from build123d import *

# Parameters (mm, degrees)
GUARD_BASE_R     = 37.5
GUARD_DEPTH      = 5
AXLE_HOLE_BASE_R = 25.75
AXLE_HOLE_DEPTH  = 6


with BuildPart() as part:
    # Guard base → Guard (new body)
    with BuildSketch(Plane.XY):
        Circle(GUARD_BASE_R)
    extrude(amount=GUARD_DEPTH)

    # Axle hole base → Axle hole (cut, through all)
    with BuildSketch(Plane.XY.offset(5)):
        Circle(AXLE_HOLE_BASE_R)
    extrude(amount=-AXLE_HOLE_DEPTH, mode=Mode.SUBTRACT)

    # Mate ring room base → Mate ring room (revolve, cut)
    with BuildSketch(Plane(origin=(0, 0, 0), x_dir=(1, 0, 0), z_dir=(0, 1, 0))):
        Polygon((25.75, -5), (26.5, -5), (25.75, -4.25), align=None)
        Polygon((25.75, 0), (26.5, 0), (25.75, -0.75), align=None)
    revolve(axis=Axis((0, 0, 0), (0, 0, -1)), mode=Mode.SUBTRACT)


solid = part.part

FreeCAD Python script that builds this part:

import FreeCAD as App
import Part
import Sketcher

V = App.Vector


def add_polygon(sketch, points):
    """Adds a closed chain of lines whose ends are joined by coincident constraints."""
    first, n = sketch.GeometryCount, len(points)
    for a, b in zip(points, points[1:] + points[:1]):
        sketch.addGeometry(Part.LineSegment(App.Vector(*a, 0), App.Vector(*b, 0)), False)
    for i in range(n):
        sketch.addConstraint(Sketcher.Constraint("Coincident", first + i, 2, first + (i + 1) % n, 1))

doc = App.newDocument("Part")
params = doc.addObject("Spreadsheet::Sheet", "Params")
for row, (alias, value) in enumerate([
    ("sketch1_diameter", "75 mm"),
    ("pad1_length", "5 mm"),
    ("sketch2_diameter", "51.5 mm"),
    ("sketch3_width", "0.75 mm"),
    ("groove_angle", "360 deg"),
], start=1):
    params.set(f"A{row}", alias)
    params.set(f"B{row}", "=" + value)
    params.setAlias(f"B{row}", alias)

body = doc.addObject("PartDesign::Body", "Body")

# Sketch on XY plane
sketch1 = body.newObject("Sketcher::SketchObject", "Sketch")
sketch1.AttachmentSupport = (doc.getObject("XY_Plane"), [""])
sketch1.MapMode = "FlatFace"
sketch1.addGeometry(Part.Circle(V(0, 0, 0), V(0, 0, 1), 37.5), False)
sketch1.addConstraint([
    Sketcher.Constraint("Coincident", 0, 3, -1, 1),
    Sketcher.Constraint("Diameter", 0, 75.0),
])
sketch1.setExpression("Constraints[1]", "Params.sketch1_diameter")
pad1 = body.newObject("PartDesign::Pad", "Pad")
pad1.Profile = sketch1
pad1.setExpression("Length", "Params.pad1_length")

# Sketch on XY plane
sketch2 = body.newObject("Sketcher::SketchObject", "Sketch001")
sketch2.AttachmentSupport = (doc.getObject("XY_Plane"), [""])
sketch2.MapMode = "FlatFace"
sketch2.AttachmentOffset = App.Placement(V(0, 0, 5), App.Rotation())
sketch2.addGeometry(Part.Circle(V(0, 0, 0), V(0, 0, 1), 25.75), False)
sketch2.addConstraint([
    Sketcher.Constraint("Coincident", 0, 3, -1, 1),
    Sketcher.Constraint("Diameter", 0, 51.5),
])
sketch2.setExpression("Constraints[1]", "Params.sketch2_diameter")
pocket1 = body.newObject("PartDesign::Pocket", "Pocket")
pocket1.Profile = sketch2
pocket1.Type = "ThroughAll"

# Sketch on XZ plane
sketch3 = body.newObject("Sketcher::SketchObject", "Sketch002")
sketch3.AttachmentSupport = (doc.getObject("XZ_Plane"), [""])
sketch3.MapMode = "FlatFace"
add_polygon(sketch3, [(25.75, 5), (26.5, 5), (25.75, 4.25)])  # lines 0-2
add_polygon(sketch3, [(26.5, 0), (25.75, 0), (25.75, 0.75)])  # lines 3-5
sketch3.addConstraint([
    Sketcher.Constraint("Horizontal", 0),
    Sketcher.Constraint("Vertical", 2),
    Sketcher.Constraint("Horizontal", 3),
    Sketcher.Constraint("Vertical", 4),
    Sketcher.Constraint("PointOnObject", 3, 2, -1),
    Sketcher.Constraint("Perpendicular", 1, 5),
    Sketcher.Constraint("Vertical", 2, 2, 3, 2),
    Sketcher.Constraint("Vertical", 0, 2, 5, 2),
    Sketcher.Constraint("Equal", 3, 2),
    Sketcher.Constraint("DistanceY", -1, 1, 0, 2, 5.0),
    Sketcher.Constraint("DistanceX", 0, 1, 0, 2, 0.75),
    Sketcher.Constraint("DistanceX", -1, 1, 0, 2, 26.5),
])
sketch3.setExpression("Constraints[16]", "Params.sketch3_width")
groove = body.newObject("PartDesign::Groove", "Groove")
groove.Profile = sketch3
groove.ReferenceAxis = (sketch3, ["V_Axis"])
groove.setExpression("Angle", "Params.groove_angle")

doc.recompute()
